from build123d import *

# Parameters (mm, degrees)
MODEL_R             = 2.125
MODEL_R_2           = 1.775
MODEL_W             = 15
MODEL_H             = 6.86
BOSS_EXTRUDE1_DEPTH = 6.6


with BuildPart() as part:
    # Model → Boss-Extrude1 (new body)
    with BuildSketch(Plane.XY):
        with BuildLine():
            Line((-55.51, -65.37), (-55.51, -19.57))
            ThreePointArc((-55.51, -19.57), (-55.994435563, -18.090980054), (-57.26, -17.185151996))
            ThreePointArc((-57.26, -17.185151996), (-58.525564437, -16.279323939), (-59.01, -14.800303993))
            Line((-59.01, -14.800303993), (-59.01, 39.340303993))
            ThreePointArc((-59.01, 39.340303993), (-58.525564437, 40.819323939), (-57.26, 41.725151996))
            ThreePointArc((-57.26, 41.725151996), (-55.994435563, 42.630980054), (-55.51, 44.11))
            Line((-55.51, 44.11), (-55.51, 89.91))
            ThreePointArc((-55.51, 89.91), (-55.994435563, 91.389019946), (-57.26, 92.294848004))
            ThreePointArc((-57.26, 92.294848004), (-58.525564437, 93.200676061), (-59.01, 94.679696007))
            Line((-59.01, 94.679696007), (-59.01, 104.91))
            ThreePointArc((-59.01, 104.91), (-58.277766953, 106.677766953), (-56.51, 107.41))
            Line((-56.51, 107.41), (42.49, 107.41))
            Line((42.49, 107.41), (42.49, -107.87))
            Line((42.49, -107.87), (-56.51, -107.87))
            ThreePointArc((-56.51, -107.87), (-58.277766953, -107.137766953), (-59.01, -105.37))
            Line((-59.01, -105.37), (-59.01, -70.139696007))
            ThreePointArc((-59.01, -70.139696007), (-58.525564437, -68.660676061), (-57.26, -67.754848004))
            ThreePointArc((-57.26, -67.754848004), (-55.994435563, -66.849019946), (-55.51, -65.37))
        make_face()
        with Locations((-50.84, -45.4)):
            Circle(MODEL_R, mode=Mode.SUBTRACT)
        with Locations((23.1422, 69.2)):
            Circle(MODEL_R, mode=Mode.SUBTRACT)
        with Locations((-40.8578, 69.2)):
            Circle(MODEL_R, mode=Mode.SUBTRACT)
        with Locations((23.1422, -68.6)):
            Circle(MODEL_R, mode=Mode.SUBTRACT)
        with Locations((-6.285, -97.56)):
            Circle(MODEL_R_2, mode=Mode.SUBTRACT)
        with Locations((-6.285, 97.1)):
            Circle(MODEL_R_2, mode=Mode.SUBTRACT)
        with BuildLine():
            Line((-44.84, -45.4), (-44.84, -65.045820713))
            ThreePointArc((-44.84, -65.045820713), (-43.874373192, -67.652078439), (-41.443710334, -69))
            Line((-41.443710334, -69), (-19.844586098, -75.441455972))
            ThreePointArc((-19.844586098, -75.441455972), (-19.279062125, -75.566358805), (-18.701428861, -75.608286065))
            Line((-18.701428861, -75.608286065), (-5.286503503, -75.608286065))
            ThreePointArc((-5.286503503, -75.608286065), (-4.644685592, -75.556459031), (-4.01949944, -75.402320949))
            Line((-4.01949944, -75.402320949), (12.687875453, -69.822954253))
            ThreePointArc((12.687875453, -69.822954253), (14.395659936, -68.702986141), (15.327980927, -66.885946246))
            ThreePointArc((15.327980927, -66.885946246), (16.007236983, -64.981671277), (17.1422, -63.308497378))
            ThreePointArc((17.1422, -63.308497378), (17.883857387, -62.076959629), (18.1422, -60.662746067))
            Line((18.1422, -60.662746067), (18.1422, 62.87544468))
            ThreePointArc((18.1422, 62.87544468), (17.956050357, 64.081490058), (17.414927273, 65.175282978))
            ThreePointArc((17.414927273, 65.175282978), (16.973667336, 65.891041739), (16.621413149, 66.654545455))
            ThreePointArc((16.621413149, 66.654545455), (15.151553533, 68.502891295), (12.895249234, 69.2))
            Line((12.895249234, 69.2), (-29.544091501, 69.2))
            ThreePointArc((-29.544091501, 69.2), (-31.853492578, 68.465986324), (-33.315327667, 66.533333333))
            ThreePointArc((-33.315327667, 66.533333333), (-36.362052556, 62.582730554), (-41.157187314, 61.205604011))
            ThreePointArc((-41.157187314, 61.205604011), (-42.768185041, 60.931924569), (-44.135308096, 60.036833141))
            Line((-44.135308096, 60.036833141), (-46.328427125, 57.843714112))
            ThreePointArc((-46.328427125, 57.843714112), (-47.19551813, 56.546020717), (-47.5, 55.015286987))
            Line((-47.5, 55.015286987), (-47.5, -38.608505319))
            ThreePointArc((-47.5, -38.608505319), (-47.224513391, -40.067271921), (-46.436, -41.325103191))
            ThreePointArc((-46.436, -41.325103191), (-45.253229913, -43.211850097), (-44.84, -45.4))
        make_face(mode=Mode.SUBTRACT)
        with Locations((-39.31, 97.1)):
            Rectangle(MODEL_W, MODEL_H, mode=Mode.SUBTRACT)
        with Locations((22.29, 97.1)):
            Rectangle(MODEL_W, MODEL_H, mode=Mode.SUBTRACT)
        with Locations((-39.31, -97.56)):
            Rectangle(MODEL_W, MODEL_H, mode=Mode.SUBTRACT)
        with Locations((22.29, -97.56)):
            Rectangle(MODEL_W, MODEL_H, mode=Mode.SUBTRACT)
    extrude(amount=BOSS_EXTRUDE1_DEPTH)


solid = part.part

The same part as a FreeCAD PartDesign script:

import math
import FreeCAD as App
import Part
import Sketcher
Q = App.Units.Quantity


def add_polygon(sketch, points):
    """Adds a closed chain of lines whose ends are joined by coincident constraints."""
    first, n = sketch.GeometryCount, len(points)
    for a, b in zip(points, points[1:] + points[:1]):
        sketch.addGeometry(Part.LineSegment(App.Vector(*a, 0), App.Vector(*b, 0)), False)
    for i in range(n):
        sketch.addConstraint(Sketcher.Constraint("Coincident", first + i, 2, first + (i + 1) % n, 1))

doc = App.newDocument("Part")
body = doc.addObject("PartDesign::Body", "Body")

# Sketch on XY plane
sketch1 = doc.addObject("Sketcher::SketchObject", "Sketch")
body.addObject(sketch1)
sketch1.AttachmentSupport = (doc.XY_Plane, [""])
sketch1.MapMode = "FlatFace"
sketch1.addGeometry(Part.LineSegment(App.Vector(-55.51, -19.57, 0), App.Vector(-55.51, -65.37, 0)), False)  # 0
sketch1.addGeometry(Part.ArcOfCircle(Part.Circle(App.Vector(-58.01, -65.37, 0), App.Vector(0, 0, 1), 2.5), math.radians(-72.542397), math.radians(0)), False)  # 1
sketch1.addGeometry(Part.ArcOfCircle(Part.Circle(App.Vector(-56.51, -70.139696, 0), App.Vector(0, 0, 1), 2.5), math.radians(107.457603), math.radians(180)), False)  # 2
sketch1.addGeometry(Part.LineSegment(App.Vector(-59.01, -70.139696, 0), App.Vector(-59.01, -105.37, 0)), False)  # 3
sketch1.addGeometry(Part.ArcOfCircle(Part.Circle(App.Vector(-56.51, -105.37, 0), App.Vector(0, 0, 1), 2.5), math.radians(180), math.radians(270)), False)  # 4
sketch1.addGeometry(Part.LineSegment(App.Vector(-56.51, -107.87, 0), App.Vector(42.49, -107.87, 0)), False)  # 5
sketch1.addGeometry(Part.LineSegment(App.Vector(42.49, -107.87, 0), App.Vector(42.49, 107.41, 0)), False)  # 6
sketch1.addGeometry(Part.LineSegment(App.Vector(42.49, 107.41, 0), App.Vector(-56.51, 107.41, 0)), False)  # 7
sketch1.addGeometry(Part.ArcOfCircle(Part.Circle(App.Vector(-56.51, 104.91, 0), App.Vector(0, 0, 1), 2.5), math.radians(90), math.radians(180)), False)  # 8
sketch1.addGeometry(Part.LineSegment(App.Vector(-59.01, 104.91, 0), App.Vector(-59.01, 94.679696, 0)), False)  # 9
sketch1.addGeometry(Part.ArcOfCircle(Part.Circle(App.Vector(-56.51, 94.679696, 0), App.Vector(0, 0, 1), 2.5), math.radians(180), math.radians(252.542397)), False)  # 10
sketch1.addGeometry(Part.ArcOfCircle(Part.Circle(App.Vector(-58.01, 89.91, 0), App.Vector(0, 0, 1), 2.5), math.radians(0), math.radians(72.542397)), False)  # 11
sketch1.addGeometry(Part.LineSegment(App.Vector(-55.51, 89.91, 0), App.Vector(-55.51, 44.11, 0)), False)  # 12
sketch1.addGeometry(Part.ArcOfCircle(Part.Circle(App.Vector(-58.01, 44.11, 0), App.Vector(0, 0, 1), 2.5), math.radians(-72.542397), math.radians(0)), False)  # 13
sketch1.addGeometry(Part.ArcOfCircle(Part.Circle(App.Vector(-56.51, 39.340304, 0), App.Vector(0, 0, 1), 2.5), math.radians(107.457603), math.radians(180)), False)  # 14
sketch1.addGeometry(Part.LineSegment(App.Vector(-59.01, 39.340304, 0), App.Vector(-59.01, -14.800304, 0)), False)  # 15
sketch1.addGeometry(Part.ArcOfCircle(Part.Circle(App.Vector(-56.51, -14.800304, 0), App.Vector(0, 0, 1), 2.5), math.radians(180), math.radians(252.542397)), False)  # 16
sketch1.addGeometry(Part.ArcOfCircle(Part.Circle(App.Vector(-58.01, -19.57, 0), App.Vector(0, 0, 1), 2.5), math.radians(0), math.radians(72.542397)), False)  # 17
add_polygon(sketch1, [(14.79, -100.99), (14.79, -94.13), (29.79, -94.13), (29.79, -100.99)])  # lines 18-21
sketch1.addGeometry(Part.Circle(App.Vector(23.1422, -68.6, 0), App.Vector(0, 0, 1), 2.125), False)  # 22
sketch1.addGeometry(Part.Circle(App.Vector(-6.285, -97.56, 0), App.Vector(0, 0, 1), 1.775), False)  # 23
add_polygon(sketch1, [(-46.81, -100.99), (-46.81, -94.13), (-31.81, -94.13), (-31.81, -100.99)])  # lines 24-27
sketch1.addGeometry(Part.ArcOfCircle(Part.Circle(App.Vector(-50.84, -45.4, 0), App.Vector(0, 0, 1), 6), math.radians(0), math.radians(42.777215)), False)  # 28
sketch1.addGeometry(Part.ArcOfCircle(Part.Circle(App.Vector(-43.5, -38.608505, 0), App.Vector(0, 0, 1), 4), math.radians(180), math.radians(222.777215)), False)  # 29
sketch1.addGeometry(Part.LineSegment(App.Vector(-47.5, -38.608505, 0), App.Vector(-47.5, 55.015287, 0)), False)  # 30
sketch1.addGeometry(Part.ArcOfCircle(Part.Circle(App.Vector(-43.5, 55.015287, 0), App.Vector(0, 0, 1), 4), math.radians(135), math.radians(180)), False)  # 31
sketch1.addGeometry(Part.LineSegment(App.Vector(-46.328427, 57.843714, 0), App.Vector(-44.135308, 60.036833, 0)), False)  # 32
sketch1.addGeometry(Part.ArcOfCircle(Part.Circle(App.Vector(-41.306881, 57.208406, 0), App.Vector(0, 0, 1), 4), math.radians(87.855296), math.radians(135)), False)  # 33
sketch1.addGeometry(Part.ArcOfCircle(Part.Circle(App.Vector(-40.8578, 69.2, 0), App.Vector(0, 0, 1), 8), math.radians(-92.144705), math.radians(-19.471221)), False)  # 34
sketch1.addGeometry(Part.ArcOfCircle(Part.Circle(App.Vector(-29.544092, 65.2, 0), App.Vector(0, 0, 1), 4), math.radians(90), math.radians(160.528779)), False)  # 35
sketch1.addGeometry(Part.LineSegment(App.Vector(-29.544092, 69.2, 0), App.Vector(12.895249, 69.2, 0)), False)  # 36
sketch1.addGeometry(Part.ArcOfCircle(Part.Circle(App.Vector(12.895249, 65.2, 0), App.Vector(0, 0, 1), 4), math.radians(21.323686), math.radians(90)), False)  # 37
sketch1.addGeometry(Part.ArcOfCircle(Part.Circle(App.Vector(23.1422, 69.2, 0), App.Vector(0, 0, 1), 7), math.radians(-158.676314), math.radians(-144.903199)), False)  # 38
sketch1.addGeometry(Part.ArcOfCircle(Part.Circle(App.Vector(14.1422, 62.875445, 0), App.Vector(0, 0, 1), 4), math.radians(0), math.radians(35.096801)), False)  # 39
sketch1.addGeometry(Part.LineSegment(App.Vector(18.1422, 62.875445, 0), App.Vector(18.1422, -60.662746, 0)), False)  # 40
sketch1.addGeometry(Part.ArcOfCircle(Part.Circle(App.Vector(14.1422, -60.662746, 0), App.Vector(0, 0, 1), 4), math.radians(-41.409622), math.radians(0)), False)  # 41
sketch1.addGeometry(Part.ArcOfCircle(Part.Circle(App.Vector(23.1422, -68.6, 0), App.Vector(0, 0, 1), 8), math.radians(138.590378), math.radians(167.628076)), False)  # 42
sketch1.addGeometry(Part.ArcOfCircle(Part.Circle(App.Vector(11.420871, -66.028919, 0), App.Vector(0, 0, 1), 4), math.radians(-71.533447), math.radians(-12.371924)), False)  # 43
sketch1.addGeometry(Part.LineSegment(App.Vector(12.687875, -69.822954, 0), App.Vector(-4.019499, -75.402321, 0)), False)  # 44
sketch1.addGeometry(Part.ArcOfCircle(Part.Circle(App.Vector(-5.286504, -71.608286, 0), App.Vector(0, 0, 1), 4), math.radians(-90), math.radians(-71.533447)), False)  # 45
sketch1.addGeometry(Part.LineSegment(App.Vector(-5.286504, -75.608286, 0), App.Vector(-18.701429, -75.608286, 0)), False)  # 46
sketch1.addGeometry(Part.ArcOfCircle(Part.Circle(App.Vector(-18.701429, -71.608286, 0), App.Vector(0, 0, 1), 4), math.radians(-106.606035), math.radians(-90)), False)  # 47
sketch1.addGeometry(Part.LineSegment(App.Vector(-19.844586, -75.441456, 0), App.Vector(-41.44371, -69, 0)), False)  # 48
sketch1.addGeometry(Part.ArcOfCircle(Part.Circle(App.Vector(-40.84, -65.045821, 0), App.Vector(0, 0, 1), 4), math.radians(180), math.radians(261.319315)), False)  # 49
sketch1.addGeometry(Part.LineSegment(App.Vector(-44.84, -65.045821, 0), App.Vector(-44.84, -45.4, 0)), False)  # 50
sketch1.addGeometry(Part.Circle(App.Vector(-50.84, -45.4, 0), App.Vector(0, 0, 1), 2.125), False)  # 51
sketch1.addGeometry(Part.Circle(App.Vector(23.1422, 69.2, 0), App.Vector(0, 0, 1), 2.125), False)  # 52
add_polygon(sketch1, [(14.79, 93.67), (14.79, 100.53), (29.79, 100.53), (29.79, 93.67)])  # lines 53-56
sketch1.addGeometry(Part.Circle(App.Vector(-6.285, 97.1, 0), App.Vector(0, 0, 1), 1.775), False)  # 57
sketch1.addGeometry(Part.Circle(App.Vector(-40.8578, 69.2, 0), App.Vector(0, 0, 1), 2.125), False)  # 58
add_polygon(sketch1, [(-46.81, 93.67), (-46.81, 100.53), (-31.81, 100.53), (-31.81, 93.67)])  # lines 59-62
sketch1.addConstraint([
    Sketcher.Constraint("Tangent", 0, 2, 1, 2),
    Sketcher.Constraint("Tangent", 1, 1, 2, 1),
    Sketcher.Constraint("Tangent", 2, 2, 3, 1),
    Sketcher.Constraint("Tangent", 3, 2, 4, 1),
    Sketcher.Constraint("Tangent", 4, 2, 5, 1),
    Sketcher.Constraint("Coincident", 5, 2, 6, 1),
    Sketcher.Constraint("Coincident", 6, 2, 7, 1),
    Sketcher.Constraint("Tangent", 7, 2, 8, 1),
    Sketcher.Constraint("Tangent", 8, 2, 9, 1),
    Sketcher.Constraint("Tangent", 9, 2, 10, 1),
    Sketcher.Constraint("Tangent", 10, 2, 11, 2),
    Sketcher.Constraint("Tangent", 11, 1, 12, 1),
    Sketcher.Constraint("Tangent", 12, 2, 13, 2),
    Sketcher.Constraint("Tangent", 13, 1, 14, 1),
    Sketcher.Constraint("Tangent", 14, 2, 15, 1),
    Sketcher.Constraint("Tangent", 15, 2, 16, 1),
    Sketcher.Constraint("Tangent", 16, 2, 17, 2),
    Sketcher.Constraint("Tangent", 17, 1, 0, 1),
    Sketcher.Constraint("Tangent", 28, 2, 29, 2),
    Sketcher.Constraint("Tangent", 29, 1, 30, 1),
    Sketcher.Constraint("Tangent", 30, 2, 31, 2),
    Sketcher.Constraint("Tangent", 31, 1, 32, 1),
    Sketcher.Constraint("Tangent", 32, 2, 33, 2),
    Sketcher.Constraint("Tangent", 33, 1, 34, 1),
    Sketcher.Constraint("Tangent", 34, 2, 35, 2),
    Sketcher.Constraint("Tangent", 35, 1, 36, 1),
    Sketcher.Constraint("Tangent", 36, 2, 37, 2),
    Sketcher.Constraint("Tangent", 37, 1, 38, 1),
    Sketcher.Constraint("Tangent", 38, 2, 39, 2),
    Sketcher.Constraint("Tangent", 39, 1, 40, 1),
    Sketcher.Constraint("Tangent", 40, 2, 41, 2),
    Sketcher.Constraint("Tangent", 41, 1, 42, 1),
    Sketcher.Constraint("Tangent", 42, 2, 43, 2),
    Sketcher.Constraint("Tangent", 43, 1, 44, 1),
    Sketcher.Constraint("Tangent", 44, 2, 45, 2),
    Sketcher.Constraint("Tangent", 45, 1, 46, 1),
    Sketcher.Constraint("Tangent", 46, 2, 47, 2),
    Sketcher.Constraint("Tangent", 47, 1, 48, 1),
    Sketcher.Constraint("Coincident", 48, 2, 49, 2),
    Sketcher.Constraint("Tangent", 49, 1, 50, 1),
    Sketcher.Constraint("Tangent", 50, 2, 28, 1),
    Sketcher.Constraint("Vertical", 0),
    Sketcher.Constraint("Vertical", 3),
    Sketcher.Constraint("Horizontal", 5),
    Sketcher.Constraint("Vertical", 6),
    Sketcher.Constraint("Horizontal", 7),
    Sketcher.Constraint("Vertical", 9),
    Sketcher.Constraint("Vertical", 12),
    Sketcher.Constraint("Vertical", 15),
    Sketcher.Constraint("Vertical", 18),
    Sketcher.Constraint("Horizontal", 19),
    Sketcher.Constraint("Vertical", 20),
    Sketcher.Constraint("Horizontal", 21),
    Sketcher.Constraint("Vertical", 24),
    Sketcher.Constraint("Horizontal", 25),
    Sketcher.Constraint("Vertical", 26),
    Sketcher.Constraint("Horizontal", 27),
    Sketcher.Constraint("Vertical", 30),
    Sketcher.Constraint("Horizontal", 36),
    Sketcher.Constraint("Vertical", 40),
    Sketcher.Constraint("Horizontal", 46),
    Sketcher.Constraint("Vertical", 50),
    Sketcher.Constraint("Vertical", 53),
    Sketcher.Constraint("Horizontal", 54),
    Sketcher.Constraint("Vertical", 55),
    Sketcher.Constraint("Horizontal", 56),
    Sketcher.Constraint("Vertical", 59),
    Sketcher.Constraint("Horizontal", 60),
    Sketcher.Constraint("Vertical", 61),
    Sketcher.Constraint("Horizontal", 62),
    Sketcher.Constraint("Coincident", 42, 3, 22, 3),
    Sketcher.Constraint("Coincident", 51, 3, 28, 3),
    Sketcher.Constraint("Coincident", 52, 3, 38, 3),
    Sketcher.Constraint("Coincident", 58, 3, 34, 3),
    Sketcher.Constraint("Equal", 1, 2),
    Sketcher.Constraint("Equal", 2, 4),
    Sketcher.Constraint("Equal", 4, 8),
    Sketcher.Constraint("Equal", 8, 10),
    Sketcher.Constraint("Equal", 10, 11),
    Sketcher.Constraint("Equal", 11, 13),
    Sketcher.Constraint("Equal", 13, 14),
    Sketcher.Constraint("Equal", 14, 16),
    Sketcher.Constraint("Equal", 16, 17),
    Sketcher.Constraint("Equal", 29, 31),
    Sketcher.Constraint("Equal", 31, 33),
    Sketcher.Constraint("Equal", 33, 35),
    Sketcher.Constraint("Equal", 35, 37),
    Sketcher.Constraint("Equal", 37, 39),
    Sketcher.Constraint("Equal", 39, 41),
    Sketcher.Constraint("Equal", 34, 42),
    Sketcher.Constraint("Equal", 41, 43),
    Sketcher.Constraint("Equal", 43, 45),
    Sketcher.Constraint("Equal", 45, 47),
    Sketcher.Constraint("Equal", 47, 49),
    Sketcher.Constraint("Equal", 22, 51),
    Sketcher.Constraint("Equal", 51, 52),
    Sketcher.Constraint("Equal", 23, 57),
    Sketcher.Constraint("Equal", 52, 58),
    Sketcher.Constraint("Horizontal", 34, 3, 38, 3),
    Sketcher.Constraint("Horizontal", 19, 2, 24, 2),
    Sketcher.Constraint("Horizontal", 21, 2, 26, 2),
    Sketcher.Constraint("Horizontal", 58, 3, 35, 1),
    Sketcher.Constraint("Horizontal", 54, 2, 59, 2),
    Sketcher.Constraint("Horizontal", 56, 2, 61, 2),
    Sketcher.Constraint("Vertical", 4, 3, 8, 3),
    Sketcher.Constraint("Vertical", 1, 3, 11, 3),
    Sketcher.Constraint("Vertical", 10, 3, 14, 3),
    Sketcher.Constraint("Vertical", 22, 3, 38, 3),
    Sketcher.Constraint("Vertical", 23, 3, 57, 3),
    Sketcher.Constraint("Vertical", 21, 2, 53, 2),
    Sketcher.Constraint("Vertical", 20, 2, 54, 2),
    Sketcher.Constraint("Vertical", 27, 2, 59, 2),
    Sketcher.Constraint("Vertical", 26, 2, 60, 2),
    Sketcher.Constraint("Equal", 21, 25),
    Sketcher.Constraint("Equal", 0, 12),
    Sketcher.Constraint("Equal", 26, 53),
    Sketcher.Constraint("Radius", 28, 6.0),
    Sketcher.Constraint("Radius", 29, 4.0),
    Sketcher.Constraint("Radius", 34, 8.0),
    Sketcher.Constraint("Radius", 38, 7.0),
    Sketcher.Constraint("Radius", 1, 2.5),
    Sketcher.Constraint("Diameter", 22, 4.25),
    Sketcher.Constraint("Diameter", 23, 3.55),
    Sketcher.Constraint("DistanceX", 5, 1, 5, 2, 99.0),
    Sketcher.Constraint("DistanceX", 19, 1, 19, 2, 15.0),
    Sketcher.Constraint("Angle", 32, Q("45 deg")),
    Sketcher.Constraint("DistanceY", 0, 2, 0, 1, 45.8),
    Sketcher.Constraint("DistanceY", 48, 2, -1, 1, 69.0),
    Sketcher.Constraint("DistanceY", 6, 1, 6, 2, 215.28),
    Sketcher.Constraint("DistanceY", 18, 1, 18, 2, 6.86),
    Sketcher.Constraint("DistanceY", 22, 3, -1, 1, 68.6),
    Sketcher.Constraint("DistanceY", 28, 3, -1, 1, 45.4),
    Sketcher.Constraint("DistanceX", 29, 3, -1, 1, 43.5),
    Sketcher.Constraint("DistanceY", -1, 1, 34, 3, 69.2),
    Sketcher.Constraint("DistanceY", -1, 1, 57, 3, 97.1),
    Sketcher.Constraint("DistanceX", 1, 3, -1, 1, 58.01),
    Sketcher.Constraint("DistanceY", 1, 3, -1, 1, 65.37),
    Sketcher.Constraint("DistanceX", 2, 3, -1, 1, 56.51),
    Sketcher.Constraint("DistanceY", 4, 3, -1, 1, 105.37),
    Sketcher.Constraint("DistanceY", -1, 1, 11, 3, 89.91),
    Sketcher.Constraint("DistanceY", 23, 3, -1, 1, 97.56),
    Sketcher.Constraint("DistanceX", 28, 3, -1, 1, 50.84),
    Sketcher.Constraint("DistanceX", -1, 1, 18, 2, 14.79),
    Sketcher.Constraint("DistanceY", 18, 2, -1, 1, 94.13),
    Sketcher.Constraint("DistanceX", 24, 2, -1, 1, 46.81),
    Sketcher.Constraint("DistanceY", -1, 1, 53, 2, 100.53),
    Sketcher.Constraint("DistanceX", 23, 3, -1, 1, 6.285),
    Sketcher.Constraint("DistanceX", 36, 1, 36, 2, 42.439341),
    Sketcher.Constraint("DistanceY", 40, 2, 40, 1, 123.538191),
    Sketcher.Constraint("DistanceY", 50, 1, 50, 2, 19.645821),
    Sketcher.Constraint("DistanceX", -1, 1, 22, 3, 23.1422),
    Sketcher.Constraint("DistanceX", 44, 2, -1, 1, 4.019499),
    Sketcher.Constraint("Distance", 32, 3.101539),
    Sketcher.Constraint("Distance", 44, 17.614361),
    Sketcher.Constraint("DistanceX", 46, 2, 46, 1, 13.414925),
    Sketcher.Constraint("DistanceX", -1, 1, 43, 3, 11.420871),
])
pad1 = doc.addObject("PartDesign::Pad", "Pad")
body.addObject(pad1)
pad1.Profile = sketch1
pad1.Length = 6.6

doc.recompute()
